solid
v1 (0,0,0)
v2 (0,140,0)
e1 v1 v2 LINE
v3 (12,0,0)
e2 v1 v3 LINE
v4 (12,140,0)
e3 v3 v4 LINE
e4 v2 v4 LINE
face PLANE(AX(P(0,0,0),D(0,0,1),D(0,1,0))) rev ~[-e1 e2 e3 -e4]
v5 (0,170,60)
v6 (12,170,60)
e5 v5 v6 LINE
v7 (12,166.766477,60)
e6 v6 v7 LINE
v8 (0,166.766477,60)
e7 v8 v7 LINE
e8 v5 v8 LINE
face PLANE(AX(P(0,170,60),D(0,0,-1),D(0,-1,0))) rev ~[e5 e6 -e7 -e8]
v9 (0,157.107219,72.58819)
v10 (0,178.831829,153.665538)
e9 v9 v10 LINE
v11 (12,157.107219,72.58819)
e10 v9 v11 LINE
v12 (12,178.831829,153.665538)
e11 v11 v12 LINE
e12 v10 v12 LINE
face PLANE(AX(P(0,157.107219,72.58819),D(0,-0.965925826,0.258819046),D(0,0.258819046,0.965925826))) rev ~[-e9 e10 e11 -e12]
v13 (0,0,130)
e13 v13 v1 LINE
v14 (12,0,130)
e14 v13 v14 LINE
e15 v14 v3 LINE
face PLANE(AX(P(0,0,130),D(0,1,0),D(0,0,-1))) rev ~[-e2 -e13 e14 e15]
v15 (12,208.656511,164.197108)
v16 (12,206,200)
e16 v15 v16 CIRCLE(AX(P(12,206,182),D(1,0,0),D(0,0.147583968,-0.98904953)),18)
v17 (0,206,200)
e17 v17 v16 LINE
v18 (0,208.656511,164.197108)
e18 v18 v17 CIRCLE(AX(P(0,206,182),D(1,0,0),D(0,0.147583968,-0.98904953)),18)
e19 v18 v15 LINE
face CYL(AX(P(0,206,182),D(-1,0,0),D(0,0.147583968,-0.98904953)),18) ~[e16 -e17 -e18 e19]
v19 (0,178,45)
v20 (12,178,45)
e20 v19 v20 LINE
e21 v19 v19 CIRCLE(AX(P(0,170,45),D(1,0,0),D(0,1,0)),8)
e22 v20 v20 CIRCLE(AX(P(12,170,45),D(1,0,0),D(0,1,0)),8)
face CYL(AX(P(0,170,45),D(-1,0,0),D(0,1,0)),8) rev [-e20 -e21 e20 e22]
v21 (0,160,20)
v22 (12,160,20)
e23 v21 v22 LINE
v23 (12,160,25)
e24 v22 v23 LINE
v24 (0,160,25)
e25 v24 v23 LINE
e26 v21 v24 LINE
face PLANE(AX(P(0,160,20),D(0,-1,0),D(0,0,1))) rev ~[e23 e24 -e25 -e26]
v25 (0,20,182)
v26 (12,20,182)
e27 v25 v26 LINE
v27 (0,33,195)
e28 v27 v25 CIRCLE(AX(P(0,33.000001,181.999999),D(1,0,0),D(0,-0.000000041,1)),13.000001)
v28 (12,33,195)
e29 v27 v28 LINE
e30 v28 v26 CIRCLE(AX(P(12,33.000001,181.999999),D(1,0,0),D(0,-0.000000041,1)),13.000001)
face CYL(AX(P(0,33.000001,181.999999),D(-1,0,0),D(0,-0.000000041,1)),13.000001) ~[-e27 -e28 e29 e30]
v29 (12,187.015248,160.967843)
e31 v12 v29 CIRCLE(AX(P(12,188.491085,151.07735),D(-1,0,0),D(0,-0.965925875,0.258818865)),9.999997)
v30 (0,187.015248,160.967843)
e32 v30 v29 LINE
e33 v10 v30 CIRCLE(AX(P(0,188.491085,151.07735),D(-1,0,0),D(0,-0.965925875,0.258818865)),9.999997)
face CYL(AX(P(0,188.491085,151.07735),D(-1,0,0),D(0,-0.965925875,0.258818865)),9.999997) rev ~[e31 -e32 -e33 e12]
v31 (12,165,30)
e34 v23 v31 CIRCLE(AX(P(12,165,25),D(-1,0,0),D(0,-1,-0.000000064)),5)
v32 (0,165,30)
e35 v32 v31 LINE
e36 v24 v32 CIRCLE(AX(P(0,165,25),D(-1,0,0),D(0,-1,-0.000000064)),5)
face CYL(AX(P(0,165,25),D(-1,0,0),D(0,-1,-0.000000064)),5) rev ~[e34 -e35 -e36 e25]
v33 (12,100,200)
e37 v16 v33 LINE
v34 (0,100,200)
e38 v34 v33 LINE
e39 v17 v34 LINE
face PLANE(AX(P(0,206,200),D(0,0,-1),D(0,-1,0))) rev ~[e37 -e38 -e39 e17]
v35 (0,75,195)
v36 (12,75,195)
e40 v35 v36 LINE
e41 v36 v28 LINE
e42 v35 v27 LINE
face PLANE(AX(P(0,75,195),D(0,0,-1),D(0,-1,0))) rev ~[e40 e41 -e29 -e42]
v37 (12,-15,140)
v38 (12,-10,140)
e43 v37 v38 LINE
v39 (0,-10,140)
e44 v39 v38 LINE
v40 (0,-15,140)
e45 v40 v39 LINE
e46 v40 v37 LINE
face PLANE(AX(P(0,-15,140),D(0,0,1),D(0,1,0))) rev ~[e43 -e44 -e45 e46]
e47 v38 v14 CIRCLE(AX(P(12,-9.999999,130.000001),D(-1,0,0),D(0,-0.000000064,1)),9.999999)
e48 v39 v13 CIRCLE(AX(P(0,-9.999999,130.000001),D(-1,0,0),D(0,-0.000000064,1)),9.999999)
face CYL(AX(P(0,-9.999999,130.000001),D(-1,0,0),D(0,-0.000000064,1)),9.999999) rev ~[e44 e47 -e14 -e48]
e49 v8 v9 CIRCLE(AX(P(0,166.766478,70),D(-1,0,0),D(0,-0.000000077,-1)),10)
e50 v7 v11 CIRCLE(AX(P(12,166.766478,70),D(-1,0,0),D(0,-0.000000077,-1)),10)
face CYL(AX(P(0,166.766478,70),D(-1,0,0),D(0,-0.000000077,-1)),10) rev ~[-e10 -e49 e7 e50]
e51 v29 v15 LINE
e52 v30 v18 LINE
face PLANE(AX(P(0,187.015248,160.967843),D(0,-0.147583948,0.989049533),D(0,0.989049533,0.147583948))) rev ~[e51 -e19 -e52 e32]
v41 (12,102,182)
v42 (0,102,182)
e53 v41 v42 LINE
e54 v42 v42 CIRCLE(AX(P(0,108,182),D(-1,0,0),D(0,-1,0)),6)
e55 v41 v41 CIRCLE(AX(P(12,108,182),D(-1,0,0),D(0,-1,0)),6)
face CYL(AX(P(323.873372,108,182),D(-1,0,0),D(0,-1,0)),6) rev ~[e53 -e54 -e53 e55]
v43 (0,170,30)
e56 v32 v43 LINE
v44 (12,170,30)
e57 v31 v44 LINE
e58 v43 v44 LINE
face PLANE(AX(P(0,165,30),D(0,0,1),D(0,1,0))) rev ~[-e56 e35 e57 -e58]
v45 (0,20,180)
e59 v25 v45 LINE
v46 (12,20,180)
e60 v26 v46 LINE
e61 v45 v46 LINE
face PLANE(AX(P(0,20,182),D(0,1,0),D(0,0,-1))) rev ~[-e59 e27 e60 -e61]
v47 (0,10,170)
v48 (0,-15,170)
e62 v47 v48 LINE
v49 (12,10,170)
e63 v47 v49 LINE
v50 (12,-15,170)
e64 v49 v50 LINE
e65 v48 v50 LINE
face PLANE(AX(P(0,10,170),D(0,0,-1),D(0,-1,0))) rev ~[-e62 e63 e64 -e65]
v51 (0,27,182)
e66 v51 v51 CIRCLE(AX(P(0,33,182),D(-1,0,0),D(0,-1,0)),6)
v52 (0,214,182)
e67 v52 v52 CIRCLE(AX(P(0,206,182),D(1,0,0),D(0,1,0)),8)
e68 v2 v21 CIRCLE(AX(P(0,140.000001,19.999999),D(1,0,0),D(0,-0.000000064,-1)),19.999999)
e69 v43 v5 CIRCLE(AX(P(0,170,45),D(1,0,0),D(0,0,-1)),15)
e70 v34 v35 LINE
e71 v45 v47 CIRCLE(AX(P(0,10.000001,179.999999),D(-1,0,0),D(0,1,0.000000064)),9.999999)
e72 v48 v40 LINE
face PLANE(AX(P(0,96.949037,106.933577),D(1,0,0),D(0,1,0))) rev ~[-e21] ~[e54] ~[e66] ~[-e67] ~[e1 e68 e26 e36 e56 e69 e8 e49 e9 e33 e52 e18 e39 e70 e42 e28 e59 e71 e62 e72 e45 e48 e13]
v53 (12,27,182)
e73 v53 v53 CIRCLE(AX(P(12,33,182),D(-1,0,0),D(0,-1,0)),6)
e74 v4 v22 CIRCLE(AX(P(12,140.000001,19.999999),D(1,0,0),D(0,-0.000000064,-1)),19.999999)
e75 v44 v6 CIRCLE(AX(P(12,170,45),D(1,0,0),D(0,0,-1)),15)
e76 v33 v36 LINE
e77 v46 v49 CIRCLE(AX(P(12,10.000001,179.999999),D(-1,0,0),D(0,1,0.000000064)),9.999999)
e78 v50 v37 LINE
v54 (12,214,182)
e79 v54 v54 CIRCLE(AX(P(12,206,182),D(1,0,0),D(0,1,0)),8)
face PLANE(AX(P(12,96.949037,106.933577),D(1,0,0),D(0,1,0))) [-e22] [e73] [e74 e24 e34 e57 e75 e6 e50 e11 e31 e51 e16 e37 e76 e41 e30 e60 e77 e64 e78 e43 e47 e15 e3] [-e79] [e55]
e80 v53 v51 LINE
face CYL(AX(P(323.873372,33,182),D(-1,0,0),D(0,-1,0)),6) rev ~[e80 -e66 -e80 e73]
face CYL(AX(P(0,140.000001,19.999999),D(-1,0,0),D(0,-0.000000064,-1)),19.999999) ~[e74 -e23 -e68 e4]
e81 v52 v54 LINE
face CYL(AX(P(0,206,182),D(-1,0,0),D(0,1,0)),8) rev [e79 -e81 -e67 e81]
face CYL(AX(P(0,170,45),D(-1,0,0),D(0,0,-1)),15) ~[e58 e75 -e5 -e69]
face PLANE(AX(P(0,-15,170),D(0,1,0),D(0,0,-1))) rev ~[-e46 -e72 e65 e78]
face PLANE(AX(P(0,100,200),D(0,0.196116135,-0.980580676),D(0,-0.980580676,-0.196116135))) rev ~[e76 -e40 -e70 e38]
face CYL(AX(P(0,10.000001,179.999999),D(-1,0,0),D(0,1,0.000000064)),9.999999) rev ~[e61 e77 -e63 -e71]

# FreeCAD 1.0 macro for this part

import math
import FreeCAD as App
import Part
import Sketcher

V = App.Vector
Q = App.Units.Quantity

doc = App.newDocument("Part")
body = doc.addObject("PartDesign::Body", "Body")

sketch1 = body.newObject("Sketcher::SketchObject", "Sketch")
sketch1.AttachmentSupport = (doc.getObject("YZ_Plane"), [""])
sketch1.MapMode = "FlatFace"
sketch1.addGeometry([
    Part.LineSegment(V(0, 130, 0), V(0, 0, 0)),
    Part.LineSegment(V(0, 0, 0), V(140, 0, 0)),
    Part.ArcOfCircle(Part.Circle(V(140, 20, 0), V(0, 0, 1), 20), math.radians(-90), math.radians(0)),
    Part.LineSegment(V(160, 20, 0), V(160, 25, 0)),
    Part.ArcOfCircle(Part.Circle(V(165, 25, 0), V(0, 0, 1), 5), math.radians(90), math.radians(180)),
    Part.LineSegment(V(165, 30, 0), V(170, 30, 0)),
    Part.ArcOfCircle(Part.Circle(V(170, 45, 0), V(0, 0, 1), 15), math.radians(-90), math.radians(90)),
    Part.LineSegment(V(170, 60, 0), V(166.8, 60, 0)),
    Part.ArcOfCircle(Part.Circle(V(166.8, 70, 0), V(0, 0, 1), 10), math.radians(165), math.radians(270)),
    Part.LineSegment(V(157.1, 72.6, 0), V(178.8, 153.7, 0)),
    Part.ArcOfCircle(Part.Circle(V(188.5, 151.1, 0), V(0, 0, 1), 10), math.radians(98), math.radians(165)),
    Part.LineSegment(V(187, 161, 0), V(208.7, 164.2, 0)),
    Part.ArcOfCircle(Part.Circle(V(206, 182, 0), V(0, 0, 1), 18), math.radians(-82), math.radians(90)),
    Part.LineSegment(V(206, 200, 0), V(100, 200, 0)),
    Part.LineSegment(V(100, 200, 0), V(75, 195, 0)),
    Part.LineSegment(V(75, 195, 0), V(33, 195, 0)),
    Part.ArcOfCircle(Part.Circle(V(33, 182, 0), V(0, 0, 1), 13), math.radians(90), math.radians(180)),
    Part.LineSegment(V(20, 182, 0), V(20, 180, 0)),
    Part.ArcOfCircle(Part.Circle(V(10, 180, 0), V(0, 0, 1), 10), math.radians(-90), math.radians(0)),
    Part.LineSegment(V(10, 170, 0), V(-15, 170, 0)),
    Part.LineSegment(V(-15, 170, 0), V(-15, 140, 0)),
    Part.LineSegment(V(-15, 140, 0), V(-10, 140, 0)),
    Part.ArcOfCircle(Part.Circle(V(-10, 130, 0), V(0, 0, 1), 10), math.radians(0), math.radians(90)),
    Part.Circle(V(170, 45, 0), V(0, 0, 1), 8),
    Part.Circle(V(206, 182, 0), V(0, 0, 1), 8),
], False)
sketch1.addConstraint([
    Sketcher.Constraint("Coincident", 0, 2, 1, 1),
    Sketcher.Constraint("Tangent", 1, 2, 2, 1),
    Sketcher.Constraint("Tangent", 2, 2, 3, 1),
    Sketcher.Constraint("Tangent", 3, 2, 4, 2),
    Sketcher.Constraint("Tangent", 4, 1, 5, 1),
    Sketcher.Constraint("Tangent", 5, 2, 6, 1),
    Sketcher.Constraint("Tangent", 6, 2, 7, 1),
    Sketcher.Constraint("Tangent", 7, 2, 8, 2),
    Sketcher.Constraint("Tangent", 8, 1, 9, 1),
    Sketcher.Constraint("Tangent", 9, 2, 10, 2),
    Sketcher.Constraint("Tangent", 10, 1, 11, 1),
    Sketcher.Constraint("Tangent", 11, 2, 12, 1),
    Sketcher.Constraint("Tangent", 12, 2, 13, 1),
    Sketcher.Constraint("Coincident", 13, 2, 14, 1),
    Sketcher.Constraint("Coincident", 14, 2, 15, 1),
    Sketcher.Constraint("Tangent", 15, 2, 16, 1),
    Sketcher.Constraint("Tangent", 16, 2, 17, 1),
    Sketcher.Constraint("Tangent", 17, 2, 18, 2),
    Sketcher.Constraint("Tangent", 18, 1, 19, 1),
    Sketcher.Constraint("Coincident", 19, 2, 20, 1),
    Sketcher.Constraint("Coincident", 20, 2, 21, 1),
    Sketcher.Constraint("Tangent", 21, 2, 22, 2),
    Sketcher.Constraint("Tangent", 22, 1, 0, 1),
    Sketcher.Constraint("Vertical", 0),
    Sketcher.Constraint("Horizontal", 1),
    Sketcher.Constraint("Vertical", 3),
    Sketcher.Constraint("Horizontal", 5),
    Sketcher.Constraint("Horizontal", 7),
    Sketcher.Constraint("Horizontal", 13),
    Sketcher.Constraint("Horizontal", 15),
    Sketcher.Constraint("Vertical", 17),
    Sketcher.Constraint("Horizontal", 19),
    Sketcher.Constraint("Vertical", 20),
    Sketcher.Constraint("Horizontal", 21),
    Sketcher.Constraint("Coincident", 0, 2, -1, 1),
    Sketcher.Constraint("Coincident", 23, 3, 6, 3),
    Sketcher.Constraint("Coincident", 24, 3, 12, 3),
    Sketcher.Constraint("Equal", 8, 18),
    Sketcher.Constraint("Equal", 18, 22),
    Sketcher.Constraint("Equal", 23, 24),
    Sketcher.Constraint("Horizontal", 12, 3, 16, 3),
    Sketcher.Constraint("Equal", 5, 21),
    Sketcher.Constraint("Equal", 21, 3),
    Sketcher.Constraint("Diameter", 23, Q("16 mm")),
    Sketcher.Constraint("Radius", 2, Q("19.999999 mm")),
    Sketcher.Constraint("Radius", 4, Q("5 mm")),
    Sketcher.Constraint("Radius", 6, Q("15 mm")),
    Sketcher.Constraint("Radius", 8, Q("10 mm")),
    Sketcher.Constraint("Radius", 12, Q("18 mm")),
    Sketcher.Constraint("Radius", 16, Q("13.000001 mm")),
    Sketcher.Constraint("DistanceX", 1, 1, 1, 2, Q("140 mm")),
    Sketcher.Constraint("DistanceX", 5, 1, 5, 2, Q("5 mm")),
    Sketcher.Constraint("DistanceX", 13, 2, 13, 1, Q("106 mm")),
    Sketcher.Constraint("DistanceX", 15, 2, 15, 1, Q("42 mm")),
    Sketcher.Constraint("DistanceX", 19, 2, 19, 1, Q("25 mm")),
    Sketcher.Constraint("DistanceY", 0, 2, 0, 1, Q("130 mm")),
    Sketcher.Constraint("DistanceY", 17, 2, 17, 1, Q("2 mm")),
    Sketcher.Constraint("DistanceY", 20, 2, 20, 1, Q("30 mm")),
    Sketcher.Constraint("Angle", 9, Q("75 deg")),
    Sketcher.Constraint("DistanceX", -1, 1, 12, 3, Q("206 mm")),
    Sketcher.Constraint("Radius", 10, Q("9.999997 mm")),
    Sketcher.Constraint("Distance", 11, Q("21.880869 mm")),
    Sketcher.Constraint("DistanceX", 7, 2, 7, 1, Q("3.233523 mm")),
])
pad1 = body.newObject("PartDesign::Pad", "Pad")
pad1.Profile = sketch1
pad1.Length = 12

sketch2 = body.newObject("Sketcher::SketchObject", "Sketch001")
sketch2.AttachmentSupport = (doc.getObject("YZ_Plane"), [""])
sketch2.MapMode = "FlatFace"
sketch2.AttachmentOffset = App.Placement(V(0, 0, 12), App.Rotation())
sketch2.addGeometry([
    Part.Circle(V(33, 182, 0), V(0, 0, 1), 6),
    Part.Circle(V(108, 182, 0), V(0, 0, 1), 6),
], False)
sketch2.addConstraint([
    Sketcher.Constraint("Equal", 0, 1),
    Sketcher.Constraint("Horizontal", 0, 3, 1, 3),
    Sketcher.Constraint("Diameter", 0, Q("12 mm")),
    Sketcher.Constraint("DistanceX", -1, 1, 0, 3, Q("33 mm")),
    Sketcher.Constraint("DistanceY", -1, 1, 0, 3, Q("182 mm")),
    Sketcher.Constraint("DistanceX", -1, 1, 1, 3, Q("108 mm")),
])
doc.recompute()
hole = body.newObject("PartDesign::Hole", "Hole")
hole.Profile = sketch2
hole.ThreadType = "None"
hole.Diameter = 12
hole.DepthType = "ThroughAll"

doc.recompute()
